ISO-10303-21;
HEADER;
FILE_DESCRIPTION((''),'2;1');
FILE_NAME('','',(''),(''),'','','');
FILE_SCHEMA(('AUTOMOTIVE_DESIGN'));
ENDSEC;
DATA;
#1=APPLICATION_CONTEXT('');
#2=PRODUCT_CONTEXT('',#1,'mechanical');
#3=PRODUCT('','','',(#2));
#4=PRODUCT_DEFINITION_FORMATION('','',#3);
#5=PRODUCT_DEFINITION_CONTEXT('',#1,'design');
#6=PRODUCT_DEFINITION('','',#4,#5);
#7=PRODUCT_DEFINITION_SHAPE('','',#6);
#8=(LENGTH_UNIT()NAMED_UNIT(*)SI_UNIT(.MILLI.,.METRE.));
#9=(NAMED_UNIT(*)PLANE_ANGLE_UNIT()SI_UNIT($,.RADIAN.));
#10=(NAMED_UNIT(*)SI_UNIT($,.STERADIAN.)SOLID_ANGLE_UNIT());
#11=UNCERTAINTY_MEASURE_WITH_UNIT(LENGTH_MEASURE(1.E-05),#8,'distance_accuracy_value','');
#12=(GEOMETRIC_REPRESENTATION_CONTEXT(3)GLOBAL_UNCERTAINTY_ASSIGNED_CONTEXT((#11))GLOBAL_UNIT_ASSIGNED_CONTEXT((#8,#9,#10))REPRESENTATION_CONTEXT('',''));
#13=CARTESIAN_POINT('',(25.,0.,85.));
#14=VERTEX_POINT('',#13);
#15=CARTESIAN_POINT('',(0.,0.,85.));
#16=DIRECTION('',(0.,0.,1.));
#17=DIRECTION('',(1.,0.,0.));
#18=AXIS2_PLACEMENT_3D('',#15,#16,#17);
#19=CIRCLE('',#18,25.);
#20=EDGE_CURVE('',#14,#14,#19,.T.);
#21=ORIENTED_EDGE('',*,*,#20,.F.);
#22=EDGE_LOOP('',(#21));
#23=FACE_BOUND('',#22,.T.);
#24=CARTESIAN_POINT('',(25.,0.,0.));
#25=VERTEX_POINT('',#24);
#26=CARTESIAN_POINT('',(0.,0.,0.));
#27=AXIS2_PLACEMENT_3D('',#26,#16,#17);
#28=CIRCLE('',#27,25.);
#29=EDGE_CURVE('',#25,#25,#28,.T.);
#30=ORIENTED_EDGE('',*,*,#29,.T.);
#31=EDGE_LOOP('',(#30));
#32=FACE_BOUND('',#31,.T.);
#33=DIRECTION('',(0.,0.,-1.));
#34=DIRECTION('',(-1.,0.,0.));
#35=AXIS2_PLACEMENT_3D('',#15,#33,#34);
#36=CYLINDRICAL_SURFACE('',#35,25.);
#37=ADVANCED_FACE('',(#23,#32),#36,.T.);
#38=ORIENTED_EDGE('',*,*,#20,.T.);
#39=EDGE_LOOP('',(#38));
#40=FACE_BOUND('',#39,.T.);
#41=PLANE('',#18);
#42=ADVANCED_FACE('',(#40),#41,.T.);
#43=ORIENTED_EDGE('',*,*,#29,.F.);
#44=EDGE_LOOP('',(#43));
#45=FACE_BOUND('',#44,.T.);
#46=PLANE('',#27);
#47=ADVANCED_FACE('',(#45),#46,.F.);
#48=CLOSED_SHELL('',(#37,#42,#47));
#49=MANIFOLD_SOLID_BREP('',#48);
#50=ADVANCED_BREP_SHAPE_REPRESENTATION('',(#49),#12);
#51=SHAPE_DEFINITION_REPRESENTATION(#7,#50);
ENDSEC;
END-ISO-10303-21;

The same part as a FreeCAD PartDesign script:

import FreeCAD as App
import Part
import Sketcher
from FreeCAD import Vector

doc = App.newDocument("Part")
params = doc.addObject("Spreadsheet::Sheet", "Params")
for row, (alias, value) in enumerate([
    ("sketch1_diameter", "50 mm"),
    ("pad1_length", "85 mm"),
], start=1):
    params.set(f"A{row}", alias)
    params.set(f"B{row}", "=" + value)
    params.setAlias(f"B{row}", alias)

body = doc.addObject("PartDesign::Body", "Body")

# Sketch on XY plane
sketch1 = body.newObject("Sketcher::SketchObject", "Sketch")
sketch1.AttachmentSupport = (doc.getObject("XY_Plane"), [""])
sketch1.MapMode = "FlatFace"
sketch1.addGeometry(Part.Circle(Vector(0, 0, 0), Vector(0, 0, 1), 25), False)
sketch1.addConstraint(Sketcher.Constraint("Coincident", 0, 3, -1, 1))
sketch1.addConstraint(Sketcher.Constraint("Diameter", 0, 50.0))
sketch1.setExpression("Constraints[1]", "Params.sketch1_diameter")
pad1 = body.newObject("PartDesign::Pad", "Pad")
pad1.Profile = sketch1
pad1.setExpression("Length", "Params.pad1_length")

doc.recompute()
